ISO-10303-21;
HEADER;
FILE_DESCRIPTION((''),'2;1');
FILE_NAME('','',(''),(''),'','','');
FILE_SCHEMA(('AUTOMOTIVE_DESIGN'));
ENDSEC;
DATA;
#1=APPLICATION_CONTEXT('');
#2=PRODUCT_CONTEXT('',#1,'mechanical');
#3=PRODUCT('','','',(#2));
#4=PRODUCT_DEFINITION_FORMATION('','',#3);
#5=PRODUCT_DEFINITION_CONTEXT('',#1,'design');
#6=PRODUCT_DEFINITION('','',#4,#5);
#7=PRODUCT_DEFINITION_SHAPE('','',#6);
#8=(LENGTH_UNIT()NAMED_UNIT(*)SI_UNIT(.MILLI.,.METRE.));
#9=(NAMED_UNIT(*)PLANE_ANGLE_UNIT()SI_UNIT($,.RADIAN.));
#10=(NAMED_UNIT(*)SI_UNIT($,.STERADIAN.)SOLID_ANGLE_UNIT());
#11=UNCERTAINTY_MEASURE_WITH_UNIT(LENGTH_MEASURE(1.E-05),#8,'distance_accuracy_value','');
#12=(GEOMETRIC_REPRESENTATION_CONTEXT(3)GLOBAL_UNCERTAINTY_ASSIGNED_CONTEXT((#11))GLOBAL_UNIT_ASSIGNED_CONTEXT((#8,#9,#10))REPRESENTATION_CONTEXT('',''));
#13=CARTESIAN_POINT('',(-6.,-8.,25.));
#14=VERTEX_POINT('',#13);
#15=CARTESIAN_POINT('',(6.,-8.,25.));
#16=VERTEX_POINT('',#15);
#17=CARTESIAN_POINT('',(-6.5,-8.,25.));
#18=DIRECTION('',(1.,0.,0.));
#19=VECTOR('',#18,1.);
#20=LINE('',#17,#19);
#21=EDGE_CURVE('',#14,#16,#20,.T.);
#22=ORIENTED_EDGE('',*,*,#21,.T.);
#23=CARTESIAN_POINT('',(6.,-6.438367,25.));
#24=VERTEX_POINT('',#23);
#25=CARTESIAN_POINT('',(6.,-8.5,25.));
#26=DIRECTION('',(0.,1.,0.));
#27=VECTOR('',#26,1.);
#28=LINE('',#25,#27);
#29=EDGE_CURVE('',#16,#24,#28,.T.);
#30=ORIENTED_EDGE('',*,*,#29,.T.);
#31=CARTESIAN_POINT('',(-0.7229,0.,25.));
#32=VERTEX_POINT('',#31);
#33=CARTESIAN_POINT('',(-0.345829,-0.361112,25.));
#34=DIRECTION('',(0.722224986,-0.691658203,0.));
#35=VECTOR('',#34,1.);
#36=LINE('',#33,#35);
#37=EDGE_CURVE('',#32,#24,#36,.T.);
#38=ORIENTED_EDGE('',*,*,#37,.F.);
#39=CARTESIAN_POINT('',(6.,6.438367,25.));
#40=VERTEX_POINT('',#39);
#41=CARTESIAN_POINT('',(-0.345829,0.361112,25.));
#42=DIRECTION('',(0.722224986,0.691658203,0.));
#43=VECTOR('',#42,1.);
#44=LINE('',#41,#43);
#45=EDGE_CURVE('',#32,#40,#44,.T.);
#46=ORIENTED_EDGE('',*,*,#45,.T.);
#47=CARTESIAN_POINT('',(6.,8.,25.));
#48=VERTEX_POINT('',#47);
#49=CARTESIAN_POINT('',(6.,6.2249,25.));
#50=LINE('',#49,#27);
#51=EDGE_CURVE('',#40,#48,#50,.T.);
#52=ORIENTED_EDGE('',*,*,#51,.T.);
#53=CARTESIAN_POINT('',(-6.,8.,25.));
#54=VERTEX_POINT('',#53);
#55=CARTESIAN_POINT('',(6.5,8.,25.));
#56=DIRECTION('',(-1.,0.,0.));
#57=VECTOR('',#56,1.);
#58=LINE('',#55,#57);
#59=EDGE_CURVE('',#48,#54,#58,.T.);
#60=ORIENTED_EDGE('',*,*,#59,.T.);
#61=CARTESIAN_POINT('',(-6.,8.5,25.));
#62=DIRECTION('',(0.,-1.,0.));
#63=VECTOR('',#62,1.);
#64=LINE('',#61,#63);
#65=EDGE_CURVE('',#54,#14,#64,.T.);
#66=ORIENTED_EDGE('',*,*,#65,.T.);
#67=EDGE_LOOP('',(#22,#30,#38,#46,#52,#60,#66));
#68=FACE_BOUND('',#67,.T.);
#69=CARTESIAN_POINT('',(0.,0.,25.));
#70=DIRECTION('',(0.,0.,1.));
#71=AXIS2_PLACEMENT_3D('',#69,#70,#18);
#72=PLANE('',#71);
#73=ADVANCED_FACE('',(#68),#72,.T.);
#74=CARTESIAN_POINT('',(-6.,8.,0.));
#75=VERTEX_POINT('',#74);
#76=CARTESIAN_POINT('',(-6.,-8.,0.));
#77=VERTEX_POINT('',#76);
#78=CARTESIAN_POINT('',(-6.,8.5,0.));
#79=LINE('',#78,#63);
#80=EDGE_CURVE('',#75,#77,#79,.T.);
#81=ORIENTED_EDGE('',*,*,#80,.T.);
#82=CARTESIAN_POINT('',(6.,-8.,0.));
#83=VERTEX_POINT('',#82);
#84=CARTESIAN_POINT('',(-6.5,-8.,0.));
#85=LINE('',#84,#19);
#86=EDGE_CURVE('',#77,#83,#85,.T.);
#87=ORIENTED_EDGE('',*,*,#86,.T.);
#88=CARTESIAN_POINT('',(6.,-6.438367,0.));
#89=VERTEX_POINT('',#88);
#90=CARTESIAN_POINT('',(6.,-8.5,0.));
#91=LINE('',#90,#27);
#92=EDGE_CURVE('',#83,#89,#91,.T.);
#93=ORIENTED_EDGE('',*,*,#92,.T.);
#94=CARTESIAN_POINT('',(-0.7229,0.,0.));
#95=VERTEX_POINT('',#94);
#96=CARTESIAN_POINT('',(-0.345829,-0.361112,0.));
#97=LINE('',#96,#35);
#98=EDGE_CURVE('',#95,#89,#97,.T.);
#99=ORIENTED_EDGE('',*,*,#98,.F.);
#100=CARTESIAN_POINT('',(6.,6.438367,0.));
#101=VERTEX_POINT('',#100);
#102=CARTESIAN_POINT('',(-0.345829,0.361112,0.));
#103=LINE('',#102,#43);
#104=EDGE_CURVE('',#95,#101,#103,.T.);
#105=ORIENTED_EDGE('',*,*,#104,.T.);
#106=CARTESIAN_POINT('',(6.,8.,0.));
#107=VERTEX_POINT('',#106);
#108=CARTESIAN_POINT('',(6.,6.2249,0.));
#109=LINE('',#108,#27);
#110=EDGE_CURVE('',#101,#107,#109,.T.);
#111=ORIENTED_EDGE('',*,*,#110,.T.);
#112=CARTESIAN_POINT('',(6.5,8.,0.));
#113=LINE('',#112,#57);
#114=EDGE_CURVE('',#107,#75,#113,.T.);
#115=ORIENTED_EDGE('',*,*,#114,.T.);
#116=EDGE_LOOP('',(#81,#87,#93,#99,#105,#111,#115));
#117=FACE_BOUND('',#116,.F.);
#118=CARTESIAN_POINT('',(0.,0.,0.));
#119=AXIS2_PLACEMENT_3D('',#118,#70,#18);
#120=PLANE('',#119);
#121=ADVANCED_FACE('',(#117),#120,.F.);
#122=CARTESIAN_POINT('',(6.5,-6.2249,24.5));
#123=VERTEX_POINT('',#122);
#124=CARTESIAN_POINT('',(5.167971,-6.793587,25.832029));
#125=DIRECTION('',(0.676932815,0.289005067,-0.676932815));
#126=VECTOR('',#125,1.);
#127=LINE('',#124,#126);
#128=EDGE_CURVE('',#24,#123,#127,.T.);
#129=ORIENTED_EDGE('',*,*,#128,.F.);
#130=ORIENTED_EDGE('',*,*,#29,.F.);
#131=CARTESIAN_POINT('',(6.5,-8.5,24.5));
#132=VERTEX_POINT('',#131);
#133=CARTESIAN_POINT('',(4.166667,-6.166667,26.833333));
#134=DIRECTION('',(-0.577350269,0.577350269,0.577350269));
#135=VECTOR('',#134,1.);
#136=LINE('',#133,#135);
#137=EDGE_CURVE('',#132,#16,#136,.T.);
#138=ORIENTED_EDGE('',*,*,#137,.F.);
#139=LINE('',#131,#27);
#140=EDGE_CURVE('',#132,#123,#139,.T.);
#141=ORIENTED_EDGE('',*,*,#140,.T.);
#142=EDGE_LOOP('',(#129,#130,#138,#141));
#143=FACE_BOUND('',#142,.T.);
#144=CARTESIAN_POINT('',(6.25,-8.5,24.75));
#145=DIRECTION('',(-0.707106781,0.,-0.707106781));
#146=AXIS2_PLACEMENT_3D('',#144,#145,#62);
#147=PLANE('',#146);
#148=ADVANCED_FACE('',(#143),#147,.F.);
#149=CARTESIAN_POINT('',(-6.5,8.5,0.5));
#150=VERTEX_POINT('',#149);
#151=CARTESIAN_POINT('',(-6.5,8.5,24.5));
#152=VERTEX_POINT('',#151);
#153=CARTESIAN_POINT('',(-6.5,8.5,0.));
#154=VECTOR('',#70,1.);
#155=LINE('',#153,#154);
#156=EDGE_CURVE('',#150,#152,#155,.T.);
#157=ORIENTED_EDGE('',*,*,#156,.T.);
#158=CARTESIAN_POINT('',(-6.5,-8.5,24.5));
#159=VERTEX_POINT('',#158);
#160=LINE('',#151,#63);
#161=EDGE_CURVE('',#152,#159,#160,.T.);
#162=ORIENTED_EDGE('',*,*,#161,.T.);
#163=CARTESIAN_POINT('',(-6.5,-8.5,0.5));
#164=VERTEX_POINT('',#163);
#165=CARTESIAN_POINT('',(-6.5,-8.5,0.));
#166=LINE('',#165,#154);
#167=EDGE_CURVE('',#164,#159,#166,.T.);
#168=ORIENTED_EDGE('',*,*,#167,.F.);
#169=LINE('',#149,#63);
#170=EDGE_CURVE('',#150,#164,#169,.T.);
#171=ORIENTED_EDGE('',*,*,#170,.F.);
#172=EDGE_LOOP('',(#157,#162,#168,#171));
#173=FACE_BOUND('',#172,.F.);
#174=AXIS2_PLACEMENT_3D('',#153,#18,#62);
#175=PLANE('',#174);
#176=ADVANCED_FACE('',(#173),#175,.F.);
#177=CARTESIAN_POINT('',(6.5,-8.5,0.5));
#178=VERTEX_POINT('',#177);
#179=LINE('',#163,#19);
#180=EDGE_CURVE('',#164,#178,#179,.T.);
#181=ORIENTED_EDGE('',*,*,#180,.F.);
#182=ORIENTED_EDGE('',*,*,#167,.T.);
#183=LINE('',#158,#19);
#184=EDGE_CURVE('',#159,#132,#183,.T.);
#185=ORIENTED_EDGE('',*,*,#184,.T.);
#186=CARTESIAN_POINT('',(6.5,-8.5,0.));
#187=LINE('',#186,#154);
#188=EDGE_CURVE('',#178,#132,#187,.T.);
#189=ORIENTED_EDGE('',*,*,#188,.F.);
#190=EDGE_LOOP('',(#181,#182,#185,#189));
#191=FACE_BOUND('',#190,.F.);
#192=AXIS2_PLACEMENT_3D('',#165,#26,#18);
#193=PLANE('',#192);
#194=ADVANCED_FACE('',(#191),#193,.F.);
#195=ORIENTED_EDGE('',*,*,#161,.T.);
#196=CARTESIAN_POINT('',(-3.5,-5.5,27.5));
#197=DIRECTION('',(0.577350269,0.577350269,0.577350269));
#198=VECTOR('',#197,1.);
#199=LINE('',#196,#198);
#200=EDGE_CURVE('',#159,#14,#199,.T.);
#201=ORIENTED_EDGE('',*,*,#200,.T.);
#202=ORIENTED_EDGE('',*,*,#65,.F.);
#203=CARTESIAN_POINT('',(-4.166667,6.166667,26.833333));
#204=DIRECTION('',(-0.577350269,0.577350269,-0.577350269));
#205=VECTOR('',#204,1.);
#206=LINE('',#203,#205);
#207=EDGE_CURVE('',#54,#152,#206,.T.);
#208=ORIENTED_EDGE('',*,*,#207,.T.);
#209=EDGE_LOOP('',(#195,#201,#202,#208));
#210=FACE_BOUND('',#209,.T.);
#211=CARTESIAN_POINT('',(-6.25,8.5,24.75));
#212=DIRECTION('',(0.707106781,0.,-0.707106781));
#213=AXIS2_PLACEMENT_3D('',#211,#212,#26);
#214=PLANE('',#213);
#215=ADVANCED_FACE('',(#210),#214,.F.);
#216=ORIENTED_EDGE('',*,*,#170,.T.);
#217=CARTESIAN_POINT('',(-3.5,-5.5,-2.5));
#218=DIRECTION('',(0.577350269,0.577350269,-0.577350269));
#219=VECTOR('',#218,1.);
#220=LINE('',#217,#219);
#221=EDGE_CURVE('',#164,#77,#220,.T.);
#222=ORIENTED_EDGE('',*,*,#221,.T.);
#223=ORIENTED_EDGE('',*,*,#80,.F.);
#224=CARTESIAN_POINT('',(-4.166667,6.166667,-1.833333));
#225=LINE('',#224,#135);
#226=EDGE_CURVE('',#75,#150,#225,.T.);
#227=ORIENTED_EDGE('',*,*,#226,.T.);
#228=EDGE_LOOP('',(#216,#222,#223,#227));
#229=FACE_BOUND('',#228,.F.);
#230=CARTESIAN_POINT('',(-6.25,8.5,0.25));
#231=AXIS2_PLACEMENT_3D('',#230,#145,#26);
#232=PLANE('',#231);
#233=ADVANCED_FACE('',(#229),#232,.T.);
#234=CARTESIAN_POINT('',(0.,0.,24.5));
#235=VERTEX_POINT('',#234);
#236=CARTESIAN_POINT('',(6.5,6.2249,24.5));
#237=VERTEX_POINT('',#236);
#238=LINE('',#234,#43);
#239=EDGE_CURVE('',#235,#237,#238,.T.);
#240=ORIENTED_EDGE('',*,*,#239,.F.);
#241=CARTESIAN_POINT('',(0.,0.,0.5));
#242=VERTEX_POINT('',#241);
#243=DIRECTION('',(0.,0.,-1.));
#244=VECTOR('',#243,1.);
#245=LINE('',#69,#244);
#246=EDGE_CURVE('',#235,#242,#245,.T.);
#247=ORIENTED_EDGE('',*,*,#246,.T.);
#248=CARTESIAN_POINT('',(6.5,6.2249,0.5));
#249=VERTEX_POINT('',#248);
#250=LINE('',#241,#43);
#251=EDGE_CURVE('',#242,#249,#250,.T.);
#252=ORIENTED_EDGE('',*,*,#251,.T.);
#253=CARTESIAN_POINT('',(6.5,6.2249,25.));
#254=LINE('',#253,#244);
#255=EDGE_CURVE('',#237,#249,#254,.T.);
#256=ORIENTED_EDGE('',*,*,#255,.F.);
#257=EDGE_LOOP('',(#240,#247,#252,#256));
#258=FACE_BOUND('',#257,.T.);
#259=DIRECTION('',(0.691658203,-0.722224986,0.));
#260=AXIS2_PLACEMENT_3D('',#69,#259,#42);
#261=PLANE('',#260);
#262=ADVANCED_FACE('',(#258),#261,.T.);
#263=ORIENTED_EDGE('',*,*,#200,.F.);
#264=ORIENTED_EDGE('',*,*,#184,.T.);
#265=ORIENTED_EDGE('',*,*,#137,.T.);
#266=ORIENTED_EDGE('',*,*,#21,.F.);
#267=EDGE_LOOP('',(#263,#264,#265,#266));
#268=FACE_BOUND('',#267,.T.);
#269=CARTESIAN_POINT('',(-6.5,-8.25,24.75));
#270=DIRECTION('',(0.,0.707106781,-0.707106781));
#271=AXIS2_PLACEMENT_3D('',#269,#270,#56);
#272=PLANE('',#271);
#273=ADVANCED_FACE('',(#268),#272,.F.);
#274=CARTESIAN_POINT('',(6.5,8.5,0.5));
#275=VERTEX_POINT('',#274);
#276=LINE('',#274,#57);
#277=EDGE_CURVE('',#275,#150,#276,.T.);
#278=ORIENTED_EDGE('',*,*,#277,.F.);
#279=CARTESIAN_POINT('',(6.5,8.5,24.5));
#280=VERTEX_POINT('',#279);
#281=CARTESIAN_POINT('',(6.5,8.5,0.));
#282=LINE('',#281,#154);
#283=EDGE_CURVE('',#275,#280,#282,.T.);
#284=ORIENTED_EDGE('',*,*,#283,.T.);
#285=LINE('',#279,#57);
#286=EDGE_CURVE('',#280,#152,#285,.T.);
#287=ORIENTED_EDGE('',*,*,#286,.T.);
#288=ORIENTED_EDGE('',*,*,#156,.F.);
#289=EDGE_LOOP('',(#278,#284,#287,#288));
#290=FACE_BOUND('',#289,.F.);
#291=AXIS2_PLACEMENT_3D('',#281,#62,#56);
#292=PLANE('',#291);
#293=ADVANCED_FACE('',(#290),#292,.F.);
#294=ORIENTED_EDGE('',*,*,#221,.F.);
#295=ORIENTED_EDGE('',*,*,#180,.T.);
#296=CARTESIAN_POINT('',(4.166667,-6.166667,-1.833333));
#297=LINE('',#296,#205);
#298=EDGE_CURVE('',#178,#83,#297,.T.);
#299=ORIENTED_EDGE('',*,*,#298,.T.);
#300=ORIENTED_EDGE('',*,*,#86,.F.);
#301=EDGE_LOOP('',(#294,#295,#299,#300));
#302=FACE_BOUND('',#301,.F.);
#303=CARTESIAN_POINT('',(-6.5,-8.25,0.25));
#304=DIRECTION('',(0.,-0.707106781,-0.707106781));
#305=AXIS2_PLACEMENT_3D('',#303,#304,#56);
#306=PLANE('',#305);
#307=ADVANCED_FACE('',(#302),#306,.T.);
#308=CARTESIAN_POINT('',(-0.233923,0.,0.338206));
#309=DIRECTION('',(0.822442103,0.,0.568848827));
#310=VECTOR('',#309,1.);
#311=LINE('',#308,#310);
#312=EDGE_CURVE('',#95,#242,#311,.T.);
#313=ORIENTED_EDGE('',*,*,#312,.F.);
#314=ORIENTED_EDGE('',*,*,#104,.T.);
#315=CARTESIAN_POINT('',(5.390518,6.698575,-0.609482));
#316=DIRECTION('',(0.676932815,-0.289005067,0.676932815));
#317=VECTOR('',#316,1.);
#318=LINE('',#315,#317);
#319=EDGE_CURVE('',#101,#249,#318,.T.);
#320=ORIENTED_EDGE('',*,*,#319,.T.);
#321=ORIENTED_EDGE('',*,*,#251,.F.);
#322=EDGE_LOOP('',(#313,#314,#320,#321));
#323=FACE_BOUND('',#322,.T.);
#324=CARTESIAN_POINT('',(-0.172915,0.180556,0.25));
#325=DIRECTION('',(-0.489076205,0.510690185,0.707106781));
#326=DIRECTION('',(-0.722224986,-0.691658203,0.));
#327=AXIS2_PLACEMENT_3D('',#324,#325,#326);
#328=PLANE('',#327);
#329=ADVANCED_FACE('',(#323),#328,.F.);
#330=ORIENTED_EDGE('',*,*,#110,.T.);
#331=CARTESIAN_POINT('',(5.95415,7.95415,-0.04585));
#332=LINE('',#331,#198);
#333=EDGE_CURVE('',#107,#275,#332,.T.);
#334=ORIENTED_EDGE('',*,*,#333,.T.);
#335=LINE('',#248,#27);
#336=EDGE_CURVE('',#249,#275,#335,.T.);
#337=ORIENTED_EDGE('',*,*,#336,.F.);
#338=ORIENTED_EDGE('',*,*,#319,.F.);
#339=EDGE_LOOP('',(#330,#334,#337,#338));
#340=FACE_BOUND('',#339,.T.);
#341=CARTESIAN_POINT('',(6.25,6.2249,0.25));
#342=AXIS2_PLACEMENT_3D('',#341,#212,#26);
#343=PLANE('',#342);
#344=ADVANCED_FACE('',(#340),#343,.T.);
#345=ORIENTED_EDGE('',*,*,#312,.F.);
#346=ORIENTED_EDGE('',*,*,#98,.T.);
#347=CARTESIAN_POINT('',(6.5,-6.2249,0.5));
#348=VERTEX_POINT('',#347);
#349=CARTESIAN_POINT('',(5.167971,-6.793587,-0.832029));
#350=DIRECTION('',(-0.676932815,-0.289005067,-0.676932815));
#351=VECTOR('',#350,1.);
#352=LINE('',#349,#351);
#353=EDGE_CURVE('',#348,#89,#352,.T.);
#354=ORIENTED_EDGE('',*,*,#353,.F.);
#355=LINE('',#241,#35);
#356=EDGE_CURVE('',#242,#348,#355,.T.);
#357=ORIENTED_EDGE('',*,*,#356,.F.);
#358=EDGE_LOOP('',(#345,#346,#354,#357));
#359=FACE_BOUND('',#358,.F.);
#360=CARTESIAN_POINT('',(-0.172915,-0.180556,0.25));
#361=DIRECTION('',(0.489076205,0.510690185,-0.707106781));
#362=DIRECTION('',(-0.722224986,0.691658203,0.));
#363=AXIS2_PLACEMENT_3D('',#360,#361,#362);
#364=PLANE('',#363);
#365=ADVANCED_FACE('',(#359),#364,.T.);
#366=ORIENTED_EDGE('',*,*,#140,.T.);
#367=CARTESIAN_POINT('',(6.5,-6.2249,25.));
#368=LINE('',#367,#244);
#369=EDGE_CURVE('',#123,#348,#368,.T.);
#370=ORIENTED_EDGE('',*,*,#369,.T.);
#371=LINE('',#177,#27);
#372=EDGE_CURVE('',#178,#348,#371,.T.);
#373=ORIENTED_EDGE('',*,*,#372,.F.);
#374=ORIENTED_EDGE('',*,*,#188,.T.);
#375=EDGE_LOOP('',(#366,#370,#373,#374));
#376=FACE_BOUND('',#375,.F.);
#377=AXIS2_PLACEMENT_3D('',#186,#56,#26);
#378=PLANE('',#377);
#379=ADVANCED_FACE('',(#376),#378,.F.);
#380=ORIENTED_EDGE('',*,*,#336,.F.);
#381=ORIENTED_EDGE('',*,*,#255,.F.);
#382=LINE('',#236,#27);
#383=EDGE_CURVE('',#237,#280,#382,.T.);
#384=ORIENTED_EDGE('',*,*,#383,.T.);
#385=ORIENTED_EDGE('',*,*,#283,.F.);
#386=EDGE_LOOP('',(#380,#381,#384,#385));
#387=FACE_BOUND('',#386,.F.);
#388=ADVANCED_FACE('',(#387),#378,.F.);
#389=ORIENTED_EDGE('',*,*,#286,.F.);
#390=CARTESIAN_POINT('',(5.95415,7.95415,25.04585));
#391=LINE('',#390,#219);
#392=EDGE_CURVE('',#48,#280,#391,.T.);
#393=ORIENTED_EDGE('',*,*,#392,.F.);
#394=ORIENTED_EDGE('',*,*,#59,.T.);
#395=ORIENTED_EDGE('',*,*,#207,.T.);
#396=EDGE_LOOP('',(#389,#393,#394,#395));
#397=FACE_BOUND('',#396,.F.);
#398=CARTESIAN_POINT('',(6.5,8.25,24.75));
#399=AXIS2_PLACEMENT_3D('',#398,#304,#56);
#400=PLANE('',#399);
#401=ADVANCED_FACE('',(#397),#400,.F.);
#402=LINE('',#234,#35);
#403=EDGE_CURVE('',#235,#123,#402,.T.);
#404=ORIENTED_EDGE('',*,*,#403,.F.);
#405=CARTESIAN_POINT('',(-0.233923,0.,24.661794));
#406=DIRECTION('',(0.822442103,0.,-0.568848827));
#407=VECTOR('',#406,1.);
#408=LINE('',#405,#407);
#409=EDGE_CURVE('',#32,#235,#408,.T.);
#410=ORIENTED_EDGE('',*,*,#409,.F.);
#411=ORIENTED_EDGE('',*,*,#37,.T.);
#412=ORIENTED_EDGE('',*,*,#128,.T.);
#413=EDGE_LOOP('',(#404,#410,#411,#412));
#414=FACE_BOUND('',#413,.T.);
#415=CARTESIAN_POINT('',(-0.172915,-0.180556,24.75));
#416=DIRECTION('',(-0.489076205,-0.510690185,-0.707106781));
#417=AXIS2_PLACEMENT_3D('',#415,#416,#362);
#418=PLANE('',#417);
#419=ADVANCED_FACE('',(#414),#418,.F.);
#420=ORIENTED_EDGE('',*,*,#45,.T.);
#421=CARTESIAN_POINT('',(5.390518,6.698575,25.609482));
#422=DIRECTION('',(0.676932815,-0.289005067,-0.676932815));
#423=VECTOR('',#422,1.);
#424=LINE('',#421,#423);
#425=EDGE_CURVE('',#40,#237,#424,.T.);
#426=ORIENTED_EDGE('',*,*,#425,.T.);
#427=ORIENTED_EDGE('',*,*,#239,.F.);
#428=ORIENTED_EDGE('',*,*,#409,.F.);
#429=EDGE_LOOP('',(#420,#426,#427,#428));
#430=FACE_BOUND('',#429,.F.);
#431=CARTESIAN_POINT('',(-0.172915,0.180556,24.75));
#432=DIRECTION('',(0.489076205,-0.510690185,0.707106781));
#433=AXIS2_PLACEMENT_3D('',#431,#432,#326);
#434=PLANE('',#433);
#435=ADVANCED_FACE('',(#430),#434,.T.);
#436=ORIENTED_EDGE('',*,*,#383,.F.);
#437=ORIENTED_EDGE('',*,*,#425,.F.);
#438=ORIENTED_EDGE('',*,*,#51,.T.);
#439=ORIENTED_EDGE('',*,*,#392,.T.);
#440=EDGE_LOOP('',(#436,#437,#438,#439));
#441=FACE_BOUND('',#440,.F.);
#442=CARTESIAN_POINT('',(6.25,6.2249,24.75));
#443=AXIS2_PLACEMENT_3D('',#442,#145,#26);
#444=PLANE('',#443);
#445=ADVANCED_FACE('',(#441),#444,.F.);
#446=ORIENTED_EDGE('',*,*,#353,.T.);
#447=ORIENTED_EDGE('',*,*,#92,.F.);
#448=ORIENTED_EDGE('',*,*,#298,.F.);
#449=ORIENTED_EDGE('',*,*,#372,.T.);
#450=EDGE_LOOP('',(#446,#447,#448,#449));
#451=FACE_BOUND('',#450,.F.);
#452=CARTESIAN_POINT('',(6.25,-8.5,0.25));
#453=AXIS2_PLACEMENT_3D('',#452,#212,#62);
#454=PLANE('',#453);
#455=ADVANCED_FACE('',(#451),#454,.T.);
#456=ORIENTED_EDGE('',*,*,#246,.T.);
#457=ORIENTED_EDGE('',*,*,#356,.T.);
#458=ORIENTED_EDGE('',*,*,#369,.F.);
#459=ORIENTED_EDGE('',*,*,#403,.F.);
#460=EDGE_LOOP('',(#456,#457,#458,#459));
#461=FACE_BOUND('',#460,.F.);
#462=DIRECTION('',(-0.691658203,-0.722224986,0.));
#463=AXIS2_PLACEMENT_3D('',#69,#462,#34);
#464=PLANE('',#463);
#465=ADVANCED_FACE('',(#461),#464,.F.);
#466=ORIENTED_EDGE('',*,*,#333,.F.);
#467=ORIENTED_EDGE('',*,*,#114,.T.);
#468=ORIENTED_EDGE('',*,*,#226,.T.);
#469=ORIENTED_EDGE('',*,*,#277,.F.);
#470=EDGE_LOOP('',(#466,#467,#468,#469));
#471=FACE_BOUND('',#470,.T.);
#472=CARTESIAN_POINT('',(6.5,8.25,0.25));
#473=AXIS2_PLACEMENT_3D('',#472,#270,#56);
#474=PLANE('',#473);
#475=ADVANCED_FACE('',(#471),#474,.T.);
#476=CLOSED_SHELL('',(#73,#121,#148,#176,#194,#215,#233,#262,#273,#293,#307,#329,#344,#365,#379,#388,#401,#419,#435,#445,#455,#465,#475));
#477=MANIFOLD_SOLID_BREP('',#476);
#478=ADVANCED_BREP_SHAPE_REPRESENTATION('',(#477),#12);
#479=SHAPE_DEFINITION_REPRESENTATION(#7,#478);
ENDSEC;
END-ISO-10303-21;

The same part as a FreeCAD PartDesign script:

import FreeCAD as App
import Part
import Sketcher
from FreeCAD import Vector


def edges_at(feature, points):
    """Names of the edges that pass closest to the given points."""
    edges = feature.Shape.Edges
    near = lambda p: min(range(len(edges)), key=lambda i: edges[i].distToShape(Part.Vertex(*p))[0])
    return sorted({f"Edge{near(p) + 1}" for p in points})

doc = App.newDocument("Part")
body = doc.addObject("PartDesign::Body", "Body")

# Sketch on XY plane
sketch1 = doc.addObject("Sketcher::SketchObject", "Sketch")
body.addObject(sketch1)
sketch1.AttachmentSupport = (doc.XY_Plane, [""])
sketch1.MapMode = "FlatFace"
sketch1.addGeometry(Part.LineSegment(Vector(-6, 8, 0), Vector(-6, -8, 0)), False)
sketch1.addGeometry(Part.LineSegment(Vector(-6, -8, 0), Vector(6, -8, 0)), False)
sketch1.addGeometry(Part.LineSegment(Vector(6, -8, 0), Vector(6, 8, 0)), False)
sketch1.addGeometry(Part.LineSegment(Vector(6, 8, 0), Vector(-6, 8, 0)), False)
sketch1.addConstraint(Sketcher.Constraint("Coincident", 0, 2, 1, 1))
sketch1.addConstraint(Sketcher.Constraint("Coincident", 1, 2, 2, 1))
sketch1.addConstraint(Sketcher.Constraint("Coincident", 2, 2, 3, 1))
sketch1.addConstraint(Sketcher.Constraint("Coincident", 3, 2, 0, 1))
sketch1.addConstraint(Sketcher.Constraint("Vertical", 0))
sketch1.addConstraint(Sketcher.Constraint("Horizontal", 1))
sketch1.addConstraint(Sketcher.Constraint("Vertical", 2))
sketch1.addConstraint(Sketcher.Constraint("Horizontal", 3))
sketch1.addConstraint(Sketcher.Constraint("Symmetric", 0, 2, 2, 2, -1, 1))
sketch1.addConstraint(Sketcher.Constraint("DistanceX", 1, 1, 1, 2, 13.0))
sketch1.addConstraint(Sketcher.Constraint("DistanceY", 0, 2, 0, 1, 17.0))
pad1 = doc.addObject("PartDesign::Pad", "Pad")
body.addObject(pad1)
pad1.Profile = sketch1
pad1.Length = 25

# Sketch on XY plane
sketch2 = doc.addObject("Sketcher::SketchObject", "Sketch001")
body.addObject(sketch2)
sketch2.AttachmentSupport = (doc.XY_Plane, [""])
sketch2.MapMode = "FlatFace"
sketch2.AttachmentOffset = App.Placement(Vector(0, 0, 25), App.Rotation())
sketch2.addGeometry(Part.LineSegment(Vector(6, 6, 0), Vector(0, 0, 0)), False)
sketch2.addGeometry(Part.LineSegment(Vector(0, 0, 0), Vector(6, -6, 0)), False)
sketch2.addGeometry(Part.LineSegment(Vector(6, -6, 0), Vector(6, 6, 0)), False)
sketch2.addConstraint(Sketcher.Constraint("Coincident", 0, 2, 1, 1))
sketch2.addConstraint(Sketcher.Constraint("Coincident", 1, 2, 2, 1))
sketch2.addConstraint(Sketcher.Constraint("Coincident", 2, 2, 0, 1))
sketch2.addConstraint(Sketcher.Constraint("Vertical", 2))
sketch2.addConstraint(Sketcher.Constraint("Coincident", 0, 2, -1, 1))
sketch2.addConstraint(Sketcher.Constraint("Equal", 0, 1))
sketch2.addConstraint(Sketcher.Constraint("Distance", 0, 9.0))
sketch2.addConstraint(Sketcher.Constraint("DistanceX", -1, 1, 1, 2, 6.5))
pocket1 = doc.addObject("PartDesign::Pocket", "Pocket")
body.addObject(pocket1)
pocket1.Profile = sketch2
pocket1.Length = 29.2025
doc.recompute()

chamfer = doc.addObject("PartDesign::Chamfer", "Chamfer")
body.addObject(chamfer)
chamfer.Base = (pocket1, edges_at(pocket1, [
    (3.25, 3.112, 25),
    (3.25, -3.112, 25),
    (6.5, 7.362, 25),
    (0, 8.5, 25),
    (-6.5, 0, 25),
    (0, -8.5, 25),
    (6.5, -7.362, 25),
    (0, -8.5, 0),
    (6.5, -7.362, 0),
    (3.25, -3.112, 0),
    (3.25, 3.112, 0),
    (6.5, 7.362, 0),
    (0, 8.5, 0),
    (-6.5, 0, 0),
]))
chamfer.Size = 0.5

doc.recompute()
